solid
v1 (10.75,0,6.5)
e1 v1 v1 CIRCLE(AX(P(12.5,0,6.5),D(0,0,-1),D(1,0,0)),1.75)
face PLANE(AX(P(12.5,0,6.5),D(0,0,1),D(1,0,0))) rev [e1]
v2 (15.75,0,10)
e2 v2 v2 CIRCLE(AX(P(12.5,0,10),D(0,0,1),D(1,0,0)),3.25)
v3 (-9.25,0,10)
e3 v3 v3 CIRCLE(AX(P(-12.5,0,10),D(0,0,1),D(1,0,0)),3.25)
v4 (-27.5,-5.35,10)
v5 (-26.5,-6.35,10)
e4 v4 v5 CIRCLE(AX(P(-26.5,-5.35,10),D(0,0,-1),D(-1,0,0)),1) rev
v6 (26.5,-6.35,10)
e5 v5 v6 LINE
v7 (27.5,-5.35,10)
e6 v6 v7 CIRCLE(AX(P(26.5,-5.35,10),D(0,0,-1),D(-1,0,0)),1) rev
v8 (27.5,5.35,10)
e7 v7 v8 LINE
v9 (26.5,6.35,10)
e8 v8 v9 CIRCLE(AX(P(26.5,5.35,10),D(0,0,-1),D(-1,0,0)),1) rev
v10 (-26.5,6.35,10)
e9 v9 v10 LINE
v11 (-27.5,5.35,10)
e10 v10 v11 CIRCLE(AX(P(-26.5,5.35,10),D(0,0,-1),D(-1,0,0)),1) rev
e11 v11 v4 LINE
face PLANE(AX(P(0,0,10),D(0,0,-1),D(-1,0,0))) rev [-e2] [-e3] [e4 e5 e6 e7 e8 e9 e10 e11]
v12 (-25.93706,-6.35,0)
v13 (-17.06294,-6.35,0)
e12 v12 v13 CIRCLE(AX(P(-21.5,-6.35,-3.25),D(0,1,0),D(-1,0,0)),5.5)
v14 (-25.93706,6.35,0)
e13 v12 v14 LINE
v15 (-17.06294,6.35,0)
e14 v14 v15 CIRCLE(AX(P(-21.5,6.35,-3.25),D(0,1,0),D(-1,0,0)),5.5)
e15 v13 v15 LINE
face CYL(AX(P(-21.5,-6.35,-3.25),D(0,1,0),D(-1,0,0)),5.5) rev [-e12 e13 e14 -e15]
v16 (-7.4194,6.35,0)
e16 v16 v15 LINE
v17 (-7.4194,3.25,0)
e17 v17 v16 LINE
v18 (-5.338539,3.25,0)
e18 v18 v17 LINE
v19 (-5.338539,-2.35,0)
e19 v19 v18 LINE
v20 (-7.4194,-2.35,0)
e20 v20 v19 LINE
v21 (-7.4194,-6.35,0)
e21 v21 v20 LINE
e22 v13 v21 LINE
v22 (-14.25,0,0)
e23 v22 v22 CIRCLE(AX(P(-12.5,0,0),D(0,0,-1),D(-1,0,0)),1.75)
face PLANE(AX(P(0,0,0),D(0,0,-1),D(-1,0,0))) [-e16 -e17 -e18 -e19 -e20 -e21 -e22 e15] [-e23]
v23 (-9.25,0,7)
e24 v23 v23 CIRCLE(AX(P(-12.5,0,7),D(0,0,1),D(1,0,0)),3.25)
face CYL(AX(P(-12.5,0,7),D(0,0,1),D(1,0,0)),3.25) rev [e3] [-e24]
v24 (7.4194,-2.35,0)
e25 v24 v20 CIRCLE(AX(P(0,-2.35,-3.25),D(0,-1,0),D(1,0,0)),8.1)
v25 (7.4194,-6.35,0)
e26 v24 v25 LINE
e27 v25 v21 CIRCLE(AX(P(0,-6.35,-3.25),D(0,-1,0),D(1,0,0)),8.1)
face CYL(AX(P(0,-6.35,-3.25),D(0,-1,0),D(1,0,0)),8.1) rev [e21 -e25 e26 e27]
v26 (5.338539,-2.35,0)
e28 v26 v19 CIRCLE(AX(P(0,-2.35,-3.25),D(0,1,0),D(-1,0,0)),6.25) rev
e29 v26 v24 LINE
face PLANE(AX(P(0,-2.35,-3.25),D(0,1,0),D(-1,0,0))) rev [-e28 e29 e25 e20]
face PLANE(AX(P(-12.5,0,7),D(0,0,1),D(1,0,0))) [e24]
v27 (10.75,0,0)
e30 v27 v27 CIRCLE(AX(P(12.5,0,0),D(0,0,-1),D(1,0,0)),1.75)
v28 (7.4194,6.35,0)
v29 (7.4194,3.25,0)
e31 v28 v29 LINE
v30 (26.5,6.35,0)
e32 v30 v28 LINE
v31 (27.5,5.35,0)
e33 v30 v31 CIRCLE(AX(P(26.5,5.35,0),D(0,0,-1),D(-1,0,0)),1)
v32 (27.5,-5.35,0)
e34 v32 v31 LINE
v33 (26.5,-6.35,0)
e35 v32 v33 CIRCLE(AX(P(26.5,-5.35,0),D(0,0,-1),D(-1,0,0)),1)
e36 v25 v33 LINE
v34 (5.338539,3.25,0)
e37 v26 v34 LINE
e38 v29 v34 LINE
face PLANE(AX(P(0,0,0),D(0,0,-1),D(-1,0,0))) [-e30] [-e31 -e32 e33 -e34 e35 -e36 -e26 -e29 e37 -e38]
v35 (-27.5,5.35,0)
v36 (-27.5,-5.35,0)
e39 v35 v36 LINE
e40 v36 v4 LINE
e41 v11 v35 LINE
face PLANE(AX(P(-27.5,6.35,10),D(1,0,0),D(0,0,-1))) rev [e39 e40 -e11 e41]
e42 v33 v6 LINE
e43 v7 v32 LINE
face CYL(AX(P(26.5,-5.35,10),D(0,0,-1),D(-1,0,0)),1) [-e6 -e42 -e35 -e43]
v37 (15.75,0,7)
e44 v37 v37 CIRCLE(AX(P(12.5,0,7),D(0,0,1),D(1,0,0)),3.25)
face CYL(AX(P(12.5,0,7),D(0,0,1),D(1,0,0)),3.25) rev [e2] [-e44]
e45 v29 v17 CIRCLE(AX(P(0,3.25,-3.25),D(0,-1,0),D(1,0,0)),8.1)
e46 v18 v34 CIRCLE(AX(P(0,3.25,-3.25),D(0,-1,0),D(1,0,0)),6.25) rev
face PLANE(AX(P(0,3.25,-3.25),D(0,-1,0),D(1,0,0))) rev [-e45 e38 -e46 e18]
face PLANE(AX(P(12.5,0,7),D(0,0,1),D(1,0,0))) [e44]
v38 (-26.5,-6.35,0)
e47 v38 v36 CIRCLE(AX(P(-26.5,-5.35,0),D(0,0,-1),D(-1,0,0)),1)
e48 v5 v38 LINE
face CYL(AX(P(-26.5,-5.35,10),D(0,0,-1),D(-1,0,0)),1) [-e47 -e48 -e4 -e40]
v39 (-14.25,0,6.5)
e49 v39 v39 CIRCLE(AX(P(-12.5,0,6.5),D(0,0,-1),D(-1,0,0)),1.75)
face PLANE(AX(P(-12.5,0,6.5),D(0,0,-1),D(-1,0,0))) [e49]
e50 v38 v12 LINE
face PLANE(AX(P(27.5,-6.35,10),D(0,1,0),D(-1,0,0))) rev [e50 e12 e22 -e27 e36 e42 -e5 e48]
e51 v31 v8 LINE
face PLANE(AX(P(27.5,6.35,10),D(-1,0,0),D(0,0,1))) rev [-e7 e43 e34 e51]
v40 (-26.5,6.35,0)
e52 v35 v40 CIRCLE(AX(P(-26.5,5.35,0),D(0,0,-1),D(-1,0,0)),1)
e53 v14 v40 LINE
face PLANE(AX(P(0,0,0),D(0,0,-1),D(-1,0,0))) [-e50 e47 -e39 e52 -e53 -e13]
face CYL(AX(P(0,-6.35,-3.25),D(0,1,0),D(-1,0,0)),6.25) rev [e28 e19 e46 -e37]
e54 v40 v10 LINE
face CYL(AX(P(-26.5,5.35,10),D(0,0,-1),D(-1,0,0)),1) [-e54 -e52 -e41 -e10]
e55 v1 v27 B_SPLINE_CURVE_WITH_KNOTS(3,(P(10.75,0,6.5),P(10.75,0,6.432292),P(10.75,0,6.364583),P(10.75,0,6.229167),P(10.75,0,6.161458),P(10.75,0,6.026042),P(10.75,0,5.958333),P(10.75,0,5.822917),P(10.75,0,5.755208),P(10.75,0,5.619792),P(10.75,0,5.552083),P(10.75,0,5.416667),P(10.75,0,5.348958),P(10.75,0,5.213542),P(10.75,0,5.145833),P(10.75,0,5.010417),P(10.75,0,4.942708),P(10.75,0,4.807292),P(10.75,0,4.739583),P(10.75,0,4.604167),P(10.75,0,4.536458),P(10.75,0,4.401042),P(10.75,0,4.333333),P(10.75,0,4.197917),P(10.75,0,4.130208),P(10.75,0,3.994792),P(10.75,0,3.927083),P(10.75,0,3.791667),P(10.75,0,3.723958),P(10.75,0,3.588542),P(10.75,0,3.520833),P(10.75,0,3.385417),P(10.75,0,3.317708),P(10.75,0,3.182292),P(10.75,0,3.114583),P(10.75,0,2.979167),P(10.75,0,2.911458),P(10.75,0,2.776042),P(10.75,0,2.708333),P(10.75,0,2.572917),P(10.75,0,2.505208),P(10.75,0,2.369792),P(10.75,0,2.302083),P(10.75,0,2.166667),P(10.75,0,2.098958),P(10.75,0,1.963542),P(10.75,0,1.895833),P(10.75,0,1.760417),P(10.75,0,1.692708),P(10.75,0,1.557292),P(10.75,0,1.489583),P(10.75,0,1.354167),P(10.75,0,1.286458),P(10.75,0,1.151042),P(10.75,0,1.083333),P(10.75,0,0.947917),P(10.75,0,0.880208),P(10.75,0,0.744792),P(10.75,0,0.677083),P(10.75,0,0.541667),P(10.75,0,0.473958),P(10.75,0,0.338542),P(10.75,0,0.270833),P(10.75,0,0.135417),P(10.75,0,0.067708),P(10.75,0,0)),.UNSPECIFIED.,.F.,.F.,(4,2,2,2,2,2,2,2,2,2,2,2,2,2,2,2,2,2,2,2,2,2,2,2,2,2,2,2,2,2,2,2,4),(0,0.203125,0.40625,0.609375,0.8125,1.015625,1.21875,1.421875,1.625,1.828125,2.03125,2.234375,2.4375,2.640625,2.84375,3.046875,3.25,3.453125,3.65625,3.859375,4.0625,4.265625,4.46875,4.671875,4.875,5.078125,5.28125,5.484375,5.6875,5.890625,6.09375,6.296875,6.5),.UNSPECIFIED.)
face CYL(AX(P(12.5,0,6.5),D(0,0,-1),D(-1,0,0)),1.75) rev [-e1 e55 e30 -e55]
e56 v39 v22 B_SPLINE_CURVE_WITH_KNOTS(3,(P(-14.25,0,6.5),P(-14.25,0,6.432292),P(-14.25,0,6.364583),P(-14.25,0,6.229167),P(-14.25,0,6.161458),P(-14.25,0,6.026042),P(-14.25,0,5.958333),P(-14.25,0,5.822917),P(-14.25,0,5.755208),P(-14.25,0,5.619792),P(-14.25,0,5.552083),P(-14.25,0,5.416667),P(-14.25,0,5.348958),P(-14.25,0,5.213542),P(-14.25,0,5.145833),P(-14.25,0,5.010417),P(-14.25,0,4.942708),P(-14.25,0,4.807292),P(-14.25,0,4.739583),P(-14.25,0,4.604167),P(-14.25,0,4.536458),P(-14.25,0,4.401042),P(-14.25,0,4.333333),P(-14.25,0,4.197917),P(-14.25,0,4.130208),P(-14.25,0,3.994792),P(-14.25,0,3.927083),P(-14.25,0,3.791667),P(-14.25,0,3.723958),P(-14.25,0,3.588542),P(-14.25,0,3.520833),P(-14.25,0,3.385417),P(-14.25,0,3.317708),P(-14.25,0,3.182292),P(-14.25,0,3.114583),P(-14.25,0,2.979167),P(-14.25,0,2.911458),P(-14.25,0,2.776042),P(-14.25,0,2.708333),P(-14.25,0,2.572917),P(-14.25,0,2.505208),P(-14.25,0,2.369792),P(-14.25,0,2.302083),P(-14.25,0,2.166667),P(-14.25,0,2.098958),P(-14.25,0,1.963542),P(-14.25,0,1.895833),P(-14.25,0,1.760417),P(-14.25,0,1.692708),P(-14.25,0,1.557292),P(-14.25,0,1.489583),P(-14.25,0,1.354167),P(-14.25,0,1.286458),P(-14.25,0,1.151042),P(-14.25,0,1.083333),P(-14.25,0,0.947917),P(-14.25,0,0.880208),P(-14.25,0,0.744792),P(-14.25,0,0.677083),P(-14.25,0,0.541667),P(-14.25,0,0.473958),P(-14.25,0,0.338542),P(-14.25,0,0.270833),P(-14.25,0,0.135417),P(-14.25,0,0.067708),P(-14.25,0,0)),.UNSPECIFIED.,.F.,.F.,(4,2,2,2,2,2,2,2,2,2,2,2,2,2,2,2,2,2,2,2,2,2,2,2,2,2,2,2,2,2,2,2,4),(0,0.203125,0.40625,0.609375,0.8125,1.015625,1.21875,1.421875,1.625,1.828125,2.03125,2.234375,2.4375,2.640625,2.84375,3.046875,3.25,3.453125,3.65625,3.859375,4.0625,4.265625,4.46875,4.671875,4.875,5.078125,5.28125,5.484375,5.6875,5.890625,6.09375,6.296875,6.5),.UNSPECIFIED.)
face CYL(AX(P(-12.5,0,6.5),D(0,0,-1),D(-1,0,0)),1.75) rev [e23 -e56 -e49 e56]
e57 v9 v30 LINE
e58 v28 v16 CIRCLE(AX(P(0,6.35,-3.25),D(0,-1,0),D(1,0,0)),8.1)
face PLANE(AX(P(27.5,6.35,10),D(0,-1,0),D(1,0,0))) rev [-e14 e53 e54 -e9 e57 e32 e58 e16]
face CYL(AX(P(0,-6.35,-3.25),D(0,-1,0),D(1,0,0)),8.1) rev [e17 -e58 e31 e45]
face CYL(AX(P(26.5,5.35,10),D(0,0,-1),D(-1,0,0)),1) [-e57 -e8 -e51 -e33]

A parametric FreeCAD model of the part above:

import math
import FreeCAD as App
import Part
import Sketcher

V = App.Vector
Q = App.Units.Quantity


def edges_at(feature, points):
    """Names of the edges that pass closest to the given points."""
    edges = feature.Shape.Edges
    near = lambda p: min(range(len(edges)), key=lambda i: edges[i].distToShape(Part.Vertex(*p))[0])
    return sorted({f"Edge{near(p) + 1}" for p in points})

doc = App.newDocument("Part")
body = doc.addObject("PartDesign::Body", "Body")

# Sketch on XY plane
sketch1 = doc.addObject("Sketcher::SketchObject", "Sketch")
body.addObject(sketch1)
sketch1.AttachmentSupport = (doc.XY_Plane, [""])
sketch1.MapMode = "FlatFace"
sketch1.addGeometry([
    Part.LineSegment(V(-27.5, 6.35, 0), V(-27.5, -6.35, 0)),
    Part.LineSegment(V(-27.5, -6.35, 0), V(27.5, -6.35, 0)),
    Part.LineSegment(V(27.5, -6.35, 0), V(27.5, 6.35, 0)),
    Part.LineSegment(V(27.5, 6.35, 0), V(-27.5, 6.35, 0)),
], False)
sketch1.addConstraint([
    Sketcher.Constraint("Coincident", 0, 2, 1, 1),
    Sketcher.Constraint("Coincident", 1, 2, 2, 1),
    Sketcher.Constraint("Coincident", 2, 2, 3, 1),
    Sketcher.Constraint("Coincident", 3, 2, 0, 1),
    Sketcher.Constraint("Vertical", 0),
    Sketcher.Constraint("Horizontal", 1),
    Sketcher.Constraint("Vertical", 2),
    Sketcher.Constraint("Horizontal", 3),
    Sketcher.Constraint("Symmetric", 0, 2, 2, 2, -1, 1),
    Sketcher.Constraint("DistanceX", 1, 1, 1, 2, Q("55 mm")),
    Sketcher.Constraint("DistanceY", 0, 2, 0, 1, Q("12.7 mm")),
])
pad1 = doc.addObject("PartDesign::Pad", "Pad")
body.addObject(pad1)
pad1.Profile = sketch1
pad1.Length = 10

# Sketch on XZ plane
sketch2 = doc.addObject("Sketcher::SketchObject", "Sketch001")
body.addObject(sketch2)
sketch2.AttachmentSupport = (doc.XZ_Plane, [""])
sketch2.MapMode = "FlatFace"
sketch2.AttachmentOffset = App.Placement(V(0, 0, -6.35), App.Rotation())
sketch2.addGeometry([
    Part.LineSegment(V(5.338539, 0, 0), V(-5.338539, 0, 0)),
    Part.ArcOfCircle(Part.Circle(V(0, -3.25, 0), V(0, 0, 1), 6.25), math.radians(31.332251), math.radians(148.667749)),
    Part.LineSegment(V(-17.06294, 0, 0), V(-25.93706, 0, 0)),
    Part.ArcOfCircle(Part.Circle(V(-21.5, -3.25, 0), V(0, 0, 1), 5.5), math.radians(36.221547), math.radians(143.778453)),
], False)
sketch2.addConstraint([
    Sketcher.Constraint("Coincident", 0, 1, 1, 1),
    Sketcher.Constraint("Coincident", 1, 2, 0, 2),
    Sketcher.Constraint("Coincident", 2, 1, 3, 1),
    Sketcher.Constraint("Coincident", 3, 2, 2, 2),
    Sketcher.Constraint("Horizontal", 0),
    Sketcher.Constraint("Horizontal", 2),
    Sketcher.Constraint("Symmetric", 0, 1, 1, 2, -1, 1),
    Sketcher.Constraint("PointOnObject", 2, 1, -1),
    Sketcher.Constraint("Horizontal", 1, 3, 3, 3),
    Sketcher.Constraint("Radius", 3, Q("5.5 mm")),
    Sketcher.Constraint("Radius", 1, Q("6.25 mm")),
    Sketcher.Constraint("DistanceX", 3, 3, -1, 1, Q("21.5 mm")),
    Sketcher.Constraint("DistanceY", 1, 3, -1, 1, Q("3.25 mm")),
])
pocket1 = doc.addObject("PartDesign::Pocket", "Pocket")
body.addObject(pocket1)
pocket1.Profile = sketch2
pocket1.Type = "ThroughAll"
pocket1.Reversed = True

# Sketch on XY plane
sketch3 = doc.addObject("Sketcher::SketchObject", "Sketch002")
body.addObject(sketch3)
sketch3.AttachmentSupport = (doc.XY_Plane, [""])
sketch3.MapMode = "FlatFace"
sketch3.AttachmentOffset = App.Placement(V(0, 0, -3.25), App.Rotation())
sketch3.addGeometry([
    Part.LineSegment(V(0, 6.35, 0), V(0, 3.25, 0)),  # 0
    Part.LineSegment(V(0, 3.25, 0), V(-8.1, 3.25, 0)),  # 1
    Part.LineSegment(V(-8.1, 3.25, 0), V(-8.1, 6.35, 0)),  # 2
    Part.LineSegment(V(-8.1, 6.35, 0), V(0, 6.35, 0)),  # 3
    Part.LineSegment(V(0, -2.35, 0), V(0, -6.35, 0)),  # 4
    Part.LineSegment(V(0, -6.35, 0), V(-8.1, -6.35, 0)),  # 5
    Part.LineSegment(V(-8.1, -6.35, 0), V(-8.1, -2.35, 0)),  # 6
    Part.LineSegment(V(-8.1, -2.35, 0), V(0, -2.35, 0)),  # 7
], False)
sketch3.addConstraint([
    Sketcher.Constraint("Coincident", 0, 2, 1, 1),
    Sketcher.Constraint("Coincident", 1, 2, 2, 1),
    Sketcher.Constraint("Coincident", 2, 2, 3, 1),
    Sketcher.Constraint("Coincident", 3, 2, 0, 1),
    Sketcher.Constraint("Coincident", 4, 2, 5, 1),
    Sketcher.Constraint("Coincident", 5, 2, 6, 1),
    Sketcher.Constraint("Coincident", 6, 2, 7, 1),
    Sketcher.Constraint("Coincident", 7, 2, 4, 1),
    Sketcher.Constraint("Vertical", 0),
    Sketcher.Constraint("Horizontal", 1),
    Sketcher.Constraint("Vertical", 2),
    Sketcher.Constraint("Horizontal", 3),
    Sketcher.Constraint("Vertical", 4),
    Sketcher.Constraint("Horizontal", 5),
    Sketcher.Constraint("Vertical", 6),
    Sketcher.Constraint("Horizontal", 7),
    Sketcher.Constraint("Symmetric", 3, 2, 4, 2, -1, 1),
    Sketcher.Constraint("PointOnObject", 0, 2, -2),
    Sketcher.Constraint("Vertical", 2, 2, 5, 2),
    Sketcher.Constraint("DistanceY", 4, 2, 4, 1, Q("4 mm")),
    Sketcher.Constraint("DistanceX", 1, 2, 1, 1, Q("8.1 mm")),
    Sketcher.Constraint("DistanceY", 0, 2, 0, 1, Q("3.1 mm")),
    Sketcher.Constraint("DistanceY", 4, 2, 0, 2, Q("9.6 mm")),
])
groove = doc.addObject("PartDesign::Groove", "Groove")
body.addObject(groove)
groove.Profile = sketch3
groove.ReferenceAxis = (sketch3, ["V_Axis"])
groove.Angle = 360

# Sketch on XY plane
sketch4 = doc.addObject("Sketcher::SketchObject", "Sketch003")
body.addObject(sketch4)
sketch4.AttachmentSupport = (doc.XY_Plane, [""])
sketch4.MapMode = "FlatFace"
sketch4.addGeometry([
    Part.Circle(V(-12.5, 0, 0), V(0, 0, 1), 1.75),
    Part.Circle(V(12.5, 0, 0), V(0, 0, 1), 1.75),
], False)
sketch4.addConstraint([
    Sketcher.Constraint("Equal", 0, 1),
    Sketcher.Constraint("Symmetric", 0, 3, 1, 3, -1, 1),
    Sketcher.Constraint("PointOnObject", 0, 3, -1),
    Sketcher.Constraint("Diameter", 0, Q("3.5 mm")),
    Sketcher.Constraint("DistanceX", 0, 3, 1, 3, Q("25 mm")),
])
pocket2 = doc.addObject("PartDesign::Pocket", "Pocket001")
body.addObject(pocket2)
pocket2.Profile = sketch4
pocket2.Length = 6.5
pocket2.Reversed = True

# Sketch on XY plane
sketch5 = doc.addObject("Sketcher::SketchObject", "Sketch004")
body.addObject(sketch5)
sketch5.AttachmentSupport = (doc.XY_Plane, [""])
sketch5.MapMode = "FlatFace"
sketch5.AttachmentOffset = App.Placement(V(0, 0, 10), App.Rotation())
sketch5.addGeometry([
    Part.Circle(V(-12.5, 0, 0), V(0, 0, 1), 3.25),
    Part.Circle(V(12.5, 0, 0), V(0, 0, 1), 3.25),
], False)
sketch5.addConstraint([
    Sketcher.Constraint("Equal", 0, 1),
    Sketcher.Constraint("Symmetric", 0, 3, 1, 3, -1, 1),
    Sketcher.Constraint("PointOnObject", 0, 3, -1),
    Sketcher.Constraint("Diameter", 0, Q("6.5 mm")),
    Sketcher.Constraint("DistanceX", 0, 3, 1, 3, Q("25 mm")),
])
pocket3 = doc.addObject("PartDesign::Pocket", "Pocket002")
body.addObject(pocket3)
pocket3.Profile = sketch5
pocket3.Length = 3
doc.recompute()

fillet = doc.addObject("PartDesign::Fillet", "Fillet")
body.addObject(fillet)
fillet.Base = (pocket3, edges_at(pocket3, [
    (-27.5, 6.35, 5),
    (27.5, 6.35, 5),
    (27.5, -6.35, 5),
    (-27.5, -6.35, 5),
]))
fillet.Radius = 1

doc.recompute()
